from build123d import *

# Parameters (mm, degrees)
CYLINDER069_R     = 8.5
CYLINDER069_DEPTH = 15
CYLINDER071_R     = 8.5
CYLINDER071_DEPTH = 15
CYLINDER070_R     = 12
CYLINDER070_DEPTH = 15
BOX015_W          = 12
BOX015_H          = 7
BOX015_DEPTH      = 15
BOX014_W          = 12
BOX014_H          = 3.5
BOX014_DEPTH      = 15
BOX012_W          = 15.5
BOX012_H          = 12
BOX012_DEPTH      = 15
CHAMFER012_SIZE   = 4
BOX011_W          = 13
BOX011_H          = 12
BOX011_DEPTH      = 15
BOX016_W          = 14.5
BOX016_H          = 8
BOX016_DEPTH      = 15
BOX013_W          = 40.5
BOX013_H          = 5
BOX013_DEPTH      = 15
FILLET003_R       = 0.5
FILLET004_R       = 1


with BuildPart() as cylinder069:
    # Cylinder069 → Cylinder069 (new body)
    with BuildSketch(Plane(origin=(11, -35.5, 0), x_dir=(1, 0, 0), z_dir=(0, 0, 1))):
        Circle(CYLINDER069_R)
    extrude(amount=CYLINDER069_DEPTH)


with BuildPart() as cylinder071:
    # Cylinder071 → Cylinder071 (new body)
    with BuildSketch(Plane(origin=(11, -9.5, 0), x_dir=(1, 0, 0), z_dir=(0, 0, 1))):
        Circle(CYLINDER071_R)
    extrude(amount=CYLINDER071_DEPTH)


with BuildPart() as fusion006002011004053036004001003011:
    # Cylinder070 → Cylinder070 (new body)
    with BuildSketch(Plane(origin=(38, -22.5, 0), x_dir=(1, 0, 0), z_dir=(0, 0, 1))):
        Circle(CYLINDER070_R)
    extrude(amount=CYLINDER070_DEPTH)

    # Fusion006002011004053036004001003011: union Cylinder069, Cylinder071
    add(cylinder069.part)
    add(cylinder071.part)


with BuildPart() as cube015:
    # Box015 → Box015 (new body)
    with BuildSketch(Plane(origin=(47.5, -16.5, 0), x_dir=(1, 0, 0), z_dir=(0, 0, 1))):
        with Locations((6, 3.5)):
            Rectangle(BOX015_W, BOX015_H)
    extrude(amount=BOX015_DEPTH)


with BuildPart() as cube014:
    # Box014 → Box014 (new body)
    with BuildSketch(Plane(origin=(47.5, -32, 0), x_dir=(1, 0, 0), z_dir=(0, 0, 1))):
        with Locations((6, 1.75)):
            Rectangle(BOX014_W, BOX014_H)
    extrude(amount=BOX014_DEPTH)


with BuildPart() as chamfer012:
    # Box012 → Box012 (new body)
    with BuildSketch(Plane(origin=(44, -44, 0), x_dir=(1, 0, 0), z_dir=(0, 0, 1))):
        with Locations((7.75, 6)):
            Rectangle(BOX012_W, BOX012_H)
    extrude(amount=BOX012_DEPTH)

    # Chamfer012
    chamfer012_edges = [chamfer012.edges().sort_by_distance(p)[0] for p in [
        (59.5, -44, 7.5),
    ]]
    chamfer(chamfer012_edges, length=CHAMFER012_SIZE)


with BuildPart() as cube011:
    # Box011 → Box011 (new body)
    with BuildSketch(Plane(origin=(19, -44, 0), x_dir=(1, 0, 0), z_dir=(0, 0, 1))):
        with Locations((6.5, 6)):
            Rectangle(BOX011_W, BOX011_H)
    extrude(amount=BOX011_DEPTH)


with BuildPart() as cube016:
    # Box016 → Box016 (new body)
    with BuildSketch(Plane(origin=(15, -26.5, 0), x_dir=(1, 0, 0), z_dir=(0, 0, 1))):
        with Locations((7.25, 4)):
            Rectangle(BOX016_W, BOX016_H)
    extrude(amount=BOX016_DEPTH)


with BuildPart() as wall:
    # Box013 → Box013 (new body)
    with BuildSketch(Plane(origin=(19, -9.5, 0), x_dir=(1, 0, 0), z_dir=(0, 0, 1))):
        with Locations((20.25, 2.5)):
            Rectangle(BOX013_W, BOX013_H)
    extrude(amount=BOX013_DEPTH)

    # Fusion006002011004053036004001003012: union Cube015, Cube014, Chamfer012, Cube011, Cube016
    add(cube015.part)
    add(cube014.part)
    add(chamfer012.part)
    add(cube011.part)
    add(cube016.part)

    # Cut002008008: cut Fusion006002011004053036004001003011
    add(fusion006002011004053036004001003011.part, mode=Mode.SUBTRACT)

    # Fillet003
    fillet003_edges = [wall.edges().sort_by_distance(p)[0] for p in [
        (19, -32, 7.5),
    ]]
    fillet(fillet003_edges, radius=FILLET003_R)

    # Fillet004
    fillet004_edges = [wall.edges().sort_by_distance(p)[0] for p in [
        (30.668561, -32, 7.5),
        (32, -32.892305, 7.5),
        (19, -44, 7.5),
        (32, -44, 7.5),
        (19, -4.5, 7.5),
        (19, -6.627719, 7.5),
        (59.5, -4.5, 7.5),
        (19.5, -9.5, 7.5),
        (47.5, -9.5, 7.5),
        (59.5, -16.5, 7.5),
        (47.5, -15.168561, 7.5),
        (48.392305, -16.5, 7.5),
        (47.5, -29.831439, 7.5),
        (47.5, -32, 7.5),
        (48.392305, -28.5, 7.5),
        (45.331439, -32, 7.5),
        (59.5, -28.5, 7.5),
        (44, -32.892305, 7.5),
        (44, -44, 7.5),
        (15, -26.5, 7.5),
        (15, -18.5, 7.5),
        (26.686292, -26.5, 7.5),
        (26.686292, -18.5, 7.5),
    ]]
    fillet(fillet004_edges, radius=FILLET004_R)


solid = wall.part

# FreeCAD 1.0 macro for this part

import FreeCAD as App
import Part
import Sketcher

V = App.Vector
Q = App.Units.Quantity


def edges_at(feature, points):
    """Names of the edges that pass closest to the given points."""
    edges = feature.Shape.Edges
    near = lambda p: min(range(len(edges)), key=lambda i: edges[i].distToShape(Part.Vertex(*p))[0])
    return sorted({f"Edge{near(p) + 1}" for p in points})


def add_polygon(sketch, points):
    """Adds a closed chain of lines whose ends are joined by coincident constraints."""
    first, n = sketch.GeometryCount, len(points)
    for a, b in zip(points, points[1:] + points[:1]):
        sketch.addGeometry(Part.LineSegment(App.Vector(*a, 0), App.Vector(*b, 0)), False)
    for i in range(n):
        sketch.addConstraint(Sketcher.Constraint("Coincident", first + i, 2, first + (i + 1) % n, 1))

doc = App.newDocument("Part")
params = doc.addObject("Spreadsheet::Sheet", "Params")
for row, (alias, value) in enumerate([
    ("sketch1_diameter", "17 mm"),
    ("pad1_length", "15 mm"),
    ("sketch2_diameter", "17 mm"),
    ("pad2_length", "15 mm"),
    ("sketch3_diameter", "24 mm"),
    ("pad3_length", "15 mm"),
    ("sketch4_width", "12 mm"),
    ("sketch4_height", "7 mm"),
    ("pad4_length", "15 mm"),
    ("sketch5_width", "12 mm"),
    ("sketch5_height", "3.5 mm"),
    ("pad5_length", "15 mm"),
    ("sketch6_height", "12 mm"),
    ("sketch6_width", "15.5 mm"),
    ("pad6_length", "15 mm"),
    ("chamfer_size", "4 mm"),
    ("sketch7_width", "13 mm"),
    ("sketch7_height", "12 mm"),
    ("pad7_length", "15 mm"),
    ("sketch8_height", "8 mm"),
    ("sketch8_width", "14.5 mm"),
    ("pad8_length", "15 mm"),
    ("sketch9_height", "5 mm"),
    ("sketch9_width", "40.5 mm"),
    ("pad9_length", "15 mm"),
    ("fillet_radius", "0.5 mm"),
    ("fillet2_radius", "1 mm"),
], start=1):
    params.set(f"A{row}", alias)
    params.set(f"B{row}", "=" + value)
    params.setAlias(f"B{row}", alias)

body = doc.addObject("PartDesign::Body", "Body")

# Sketch on XY plane
sketch1 = body.newObject("Sketcher::SketchObject", "Sketch")
sketch1.AttachmentSupport = (doc.getObject("XY_Plane"), [""])
sketch1.MapMode = "FlatFace"
sketch1.addGeometry(Part.Circle(V(11, -35.5, 0), V(0, 0, 1), 8.5), False)
sketch1.addConstraint(Sketcher.Constraint("Diameter", 0, Q("17 mm")))
sketch1.addConstraint(Sketcher.Constraint("DistanceX", -1, 1, 0, 3, Q("11 mm")))
sketch1.addConstraint(Sketcher.Constraint("DistanceY", 0, 3, -1, 1, Q("35.5 mm")))
sketch1.setExpression("Constraints[0]", "Params.sketch1_diameter")
pad1 = body.newObject("PartDesign::Pad", "Pad")
pad1.Profile = sketch1
pad1.setExpression("Length", "Params.pad1_length")
body2 = doc.addObject("PartDesign::Body", "Body001")

# Sketch on XY plane
sketch2 = body2.newObject("Sketcher::SketchObject", "Sketch001")
sketch2.AttachmentSupport = (doc.getObject("XY_Plane001"), [""])
sketch2.MapMode = "FlatFace"
sketch2.addGeometry(Part.Circle(V(11, -9.5, 0), V(0, 0, 1), 8.5), False)
sketch2.addConstraint(Sketcher.Constraint("Diameter", 0, Q("17 mm")))
sketch2.addConstraint(Sketcher.Constraint("DistanceX", -1, 1, 0, 3, Q("11 mm")))
sketch2.addConstraint(Sketcher.Constraint("DistanceY", 0, 3, -1, 1, Q("9.5 mm")))
sketch2.setExpression("Constraints[0]", "Params.sketch2_diameter")
pad2 = body2.newObject("PartDesign::Pad", "Pad001")
pad2.Profile = sketch2
pad2.setExpression("Length", "Params.pad2_length")
body3 = doc.addObject("PartDesign::Body", "Body002")
body3.AllowCompound = True

# Sketch on XY plane
sketch3 = body3.newObject("Sketcher::SketchObject", "Sketch002")
sketch3.AttachmentSupport = (doc.getObject("XY_Plane002"), [""])
sketch3.MapMode = "FlatFace"
sketch3.addGeometry(Part.Circle(V(38, -22.5, 0), V(0, 0, 1), 12), False)
sketch3.addConstraint(Sketcher.Constraint("Diameter", 0, Q("24 mm")))
sketch3.addConstraint(Sketcher.Constraint("DistanceX", -1, 1, 0, 3, Q("38 mm")))
sketch3.addConstraint(Sketcher.Constraint("DistanceY", 0, 3, -1, 1, Q("22.5 mm")))
sketch3.setExpression("Constraints[0]", "Params.sketch3_diameter")
pad3 = body3.newObject("PartDesign::Pad", "Pad002")
pad3.Profile = sketch3
pad3.setExpression("Length", "Params.pad3_length")
doc.recompute()

boolean = body3.newObject("PartDesign::Boolean", "Boolean")
boolean.Type = "Fuse"
boolean.addObjects([body])
doc.recompute()

boolean2 = body3.newObject("PartDesign::Boolean", "Boolean001")
boolean2.Type = "Fuse"
boolean2.addObjects([body2])
body4 = doc.addObject("PartDesign::Body", "Body003")

# Sketch on XY plane
sketch4 = body4.newObject("Sketcher::SketchObject", "Sketch003")
sketch4.AttachmentSupport = (doc.getObject("XY_Plane003"), [""])
sketch4.MapMode = "FlatFace"
add_polygon(sketch4, [(47.5, -9.5), (47.5, -16.5), (59.5, -16.5), (59.5, -9.5)])  # lines 0-3
sketch4.addConstraint(Sketcher.Constraint("Vertical", 0))
sketch4.addConstraint(Sketcher.Constraint("Horizontal", 1))
sketch4.addConstraint(Sketcher.Constraint("Vertical", 2))
sketch4.addConstraint(Sketcher.Constraint("Horizontal", 3))
sketch4.addConstraint(Sketcher.Constraint("DistanceX", 1, 1, 1, 2, Q("12 mm")))
sketch4.addConstraint(Sketcher.Constraint("DistanceY", 0, 2, 0, 1, Q("7 mm")))
sketch4.addConstraint(Sketcher.Constraint("DistanceX", -1, 1, 0, 2, Q("47.5 mm")))
sketch4.addConstraint(Sketcher.Constraint("DistanceY", 0, 2, -1, 1, Q("16.5 mm")))
sketch4.setExpression("Constraints[8]", "Params.sketch4_width")
sketch4.setExpression("Constraints[9]", "Params.sketch4_height")
pad4 = body4.newObject("PartDesign::Pad", "Pad003")
pad4.Profile = sketch4
pad4.setExpression("Length", "Params.pad4_length")
body5 = doc.addObject("PartDesign::Body", "Body004")

# Sketch on XY plane
sketch5 = body5.newObject("Sketcher::SketchObject", "Sketch004")
sketch5.AttachmentSupport = (doc.getObject("XY_Plane004"), [""])
sketch5.MapMode = "FlatFace"
add_polygon(sketch5, [(47.5, -28.5), (47.5, -32), (59.5, -32), (59.5, -28.5)])  # lines 0-3
sketch5.addConstraint(Sketcher.Constraint("Vertical", 0))
sketch5.addConstraint(Sketcher.Constraint("Horizontal", 1))
sketch5.addConstraint(Sketcher.Constraint("Vertical", 2))
sketch5.addConstraint(Sketcher.Constraint("Horizontal", 3))
sketch5.addConstraint(Sketcher.Constraint("DistanceX", 1, 1, 1, 2, Q("12 mm")))
sketch5.addConstraint(Sketcher.Constraint("DistanceY", 0, 2, 0, 1, Q("3.5 mm")))
sketch5.addConstraint(Sketcher.Constraint("DistanceY", 0, 2, -1, 1, Q("32 mm")))
sketch5.addConstraint(Sketcher.Constraint("DistanceX", -1, 1, 0, 2, Q("47.5 mm")))
sketch5.setExpression("Constraints[8]", "Params.sketch5_width")
sketch5.setExpression("Constraints[9]", "Params.sketch5_height")
pad5 = body5.newObject("PartDesign::Pad", "Pad004")
pad5.Profile = sketch5
pad5.setExpression("Length", "Params.pad5_length")
body6 = doc.addObject("PartDesign::Body", "Body005")

# Sketch on XY plane
sketch6 = body6.newObject("Sketcher::SketchObject", "Sketch005")
sketch6.AttachmentSupport = (doc.getObject("XY_Plane005"), [""])
sketch6.MapMode = "FlatFace"
add_polygon(sketch6, [(44, -32), (44, -44), (59.5, -44), (59.5, -32)])  # lines 0-3
sketch6.addConstraint(Sketcher.Constraint("Vertical", 0))
sketch6.addConstraint(Sketcher.Constraint("Horizontal", 1))
sketch6.addConstraint(Sketcher.Constraint("Vertical", 2))
sketch6.addConstraint(Sketcher.Constraint("Horizontal", 3))
sketch6.addConstraint(Sketcher.Constraint("DistanceY", 0, 2, 0, 1, Q("12 mm")))
sketch6.addConstraint(Sketcher.Constraint("DistanceX", 1, 1, 1, 2, Q("15.5 mm")))
sketch6.addConstraint(Sketcher.Constraint("DistanceX", -1, 1, 0, 2, Q("44 mm")))
sketch6.addConstraint(Sketcher.Constraint("DistanceY", 0, 2, -1, 1, Q("44 mm")))
sketch6.setExpression("Constraints[8]", "Params.sketch6_height")
sketch6.setExpression("Constraints[9]", "Params.sketch6_width")
pad6 = body6.newObject("PartDesign::Pad", "Pad005")
pad6.Profile = sketch6
pad6.setExpression("Length", "Params.pad6_length")
doc.recompute()

chamfer = body6.newObject("PartDesign::Chamfer", "Chamfer")
chamfer.Base = (pad6, edges_at(pad6, [(59.5, -44, 7.5)]))
chamfer.setExpression("Size", "Params.chamfer_size")
body7 = doc.addObject("PartDesign::Body", "Body006")

# Sketch on XY plane
sketch7 = body7.newObject("Sketcher::SketchObject", "Sketch006")
sketch7.AttachmentSupport = (doc.getObject("XY_Plane006"), [""])
sketch7.MapMode = "FlatFace"
add_polygon(sketch7, [(19, -32), (19, -44), (32, -44), (32, -32)])  # lines 0-3
sketch7.addConstraint(Sketcher.Constraint("Vertical", 0))
sketch7.addConstraint(Sketcher.Constraint("Horizontal", 1))
sketch7.addConstraint(Sketcher.Constraint("Vertical", 2))
sketch7.addConstraint(Sketcher.Constraint("Horizontal", 3))
sketch7.addConstraint(Sketcher.Constraint("DistanceX", 1, 1, 1, 2, Q("13 mm")))
sketch7.addConstraint(Sketcher.Constraint("DistanceY", 0, 2, 0, 1, Q("12 mm")))
sketch7.addConstraint(Sketcher.Constraint("DistanceX", -1, 1, 0, 2, Q("19 mm")))
sketch7.addConstraint(Sketcher.Constraint("DistanceY", 0, 2, -1, 1, Q("44 mm")))
sketch7.setExpression("Constraints[8]", "Params.sketch7_width")
sketch7.setExpression("Constraints[9]", "Params.sketch7_height")
pad7 = body7.newObject("PartDesign::Pad", "Pad006")
pad7.Profile = sketch7
pad7.setExpression("Length", "Params.pad7_length")
body8 = doc.addObject("PartDesign::Body", "Body007")

# Sketch on XY plane
sketch8 = body8.newObject("Sketcher::SketchObject", "Sketch007")
sketch8.AttachmentSupport = (doc.getObject("XY_Plane007"), [""])
sketch8.MapMode = "FlatFace"
add_polygon(sketch8, [(15, -18.5), (15, -26.5), (29.5, -26.5), (29.5, -18.5)])  # lines 0-3
sketch8.addConstraint(Sketcher.Constraint("Vertical", 0))
sketch8.addConstraint(Sketcher.Constraint("Horizontal", 1))
sketch8.addConstraint(Sketcher.Constraint("Vertical", 2))
sketch8.addConstraint(Sketcher.Constraint("Horizontal", 3))
sketch8.addConstraint(Sketcher.Constraint("DistanceY", 0, 2, 0, 1, Q("8 mm")))
sketch8.addConstraint(Sketcher.Constraint("DistanceX", 1, 1, 1, 2, Q("14.5 mm")))
sketch8.addConstraint(Sketcher.Constraint("DistanceX", -1, 1, 0, 2, Q("15 mm")))
sketch8.addConstraint(Sketcher.Constraint("DistanceY", 0, 2, -1, 1, Q("26.5 mm")))
sketch8.setExpression("Constraints[8]", "Params.sketch8_height")
sketch8.setExpression("Constraints[9]", "Params.sketch8_width")
pad8 = body8.newObject("PartDesign::Pad", "Pad007")
pad8.Profile = sketch8
pad8.setExpression("Length", "Params.pad8_length")
body9 = doc.addObject("PartDesign::Body", "Body008")
body9.AllowCompound = True

# Sketch on XY plane
sketch9 = body9.newObject("Sketcher::SketchObject", "Sketch008")
sketch9.AttachmentSupport = (doc.getObject("XY_Plane008"), [""])
sketch9.MapMode = "FlatFace"
add_polygon(sketch9, [(19, -4.5), (19, -9.5), (59.5, -9.5), (59.5, -4.5)])  # lines 0-3
sketch9.addConstraint(Sketcher.Constraint("Vertical", 0))
sketch9.addConstraint(Sketcher.Constraint("Horizontal", 1))
sketch9.addConstraint(Sketcher.Constraint("Vertical", 2))
sketch9.addConstraint(Sketcher.Constraint("Horizontal", 3))
sketch9.addConstraint(Sketcher.Constraint("DistanceY", 0, 2, 0, 1, Q("5 mm")))
sketch9.addConstraint(Sketcher.Constraint("DistanceX", 1, 1, 1, 2, Q("40.5 mm")))
sketch9.addConstraint(Sketcher.Constraint("DistanceX", -1, 1, 0, 2, Q("19 mm")))
sketch9.addConstraint(Sketcher.Constraint("DistanceY", 0, 2, -1, 1, Q("9.5 mm")))
sketch9.setExpression("Constraints[8]", "Params.sketch9_height")
sketch9.setExpression("Constraints[9]", "Params.sketch9_width")
pad9 = body9.newObject("PartDesign::Pad", "Pad008")
pad9.Profile = sketch9
pad9.setExpression("Length", "Params.pad9_length")
doc.recompute()

boolean3 = body9.newObject("PartDesign::Boolean", "Boolean002")
boolean3.Type = "Fuse"
boolean3.addObjects([body4])
doc.recompute()

boolean4 = body9.newObject("PartDesign::Boolean", "Boolean003")
boolean4.Type = "Fuse"
boolean4.addObjects([body5])
doc.recompute()

boolean5 = body9.newObject("PartDesign::Boolean", "Boolean004")
boolean5.Type = "Fuse"
boolean5.addObjects([body6])
doc.recompute()

boolean6 = body9.newObject("PartDesign::Boolean", "Boolean005")
boolean6.Type = "Fuse"
boolean6.addObjects([body7])
doc.recompute()

boolean7 = body9.newObject("PartDesign::Boolean", "Boolean006")
boolean7.Type = "Fuse"
boolean7.addObjects([body8])
doc.recompute()

boolean8 = body9.newObject("PartDesign::Boolean", "Boolean007")
boolean8.Type = "Cut"
boolean8.addObjects([body3])
doc.recompute()

fillet = body9.newObject("PartDesign::Fillet", "Fillet")
fillet.Base = (boolean8, edges_at(boolean8, [(19, -32, 7.5)]))
fillet.setExpression("Radius", "Params.fillet_radius")
doc.recompute()

fillet2 = body9.newObject("PartDesign::Fillet", "Fillet001")
fillet2.Base = (fillet, edges_at(fillet, [
    (30.669, -32, 7.5),
    (32, -32.892, 7.5),
    (19, -44, 7.5),
    (32, -44, 7.5),
    (19, -4.5, 7.5),
    (19, -6.628, 7.5),
    (59.5, -4.5, 7.5),
    (19.5, -9.5, 7.5),
    (47.5, -9.5, 7.5),
    (59.5, -16.5, 7.5),
    (47.5, -15.169, 7.5),
    (48.392, -16.5, 7.5),
    (47.5, -29.831, 7.5),
    (47.5, -32, 7.5),
    (48.392, -28.5, 7.5),
    (45.331, -32, 7.5),
    (59.5, -28.5, 7.5),
    (44, -32.892, 7.5),
    (44, -44, 7.5),
    (15, -26.5, 7.5),
    (15, -18.5, 7.5),
    (26.686, -26.5, 7.5),
    (26.686, -18.5, 7.5),
]))
fillet2.setExpression("Radius", "Params.fillet2_radius")

doc.recompute()
